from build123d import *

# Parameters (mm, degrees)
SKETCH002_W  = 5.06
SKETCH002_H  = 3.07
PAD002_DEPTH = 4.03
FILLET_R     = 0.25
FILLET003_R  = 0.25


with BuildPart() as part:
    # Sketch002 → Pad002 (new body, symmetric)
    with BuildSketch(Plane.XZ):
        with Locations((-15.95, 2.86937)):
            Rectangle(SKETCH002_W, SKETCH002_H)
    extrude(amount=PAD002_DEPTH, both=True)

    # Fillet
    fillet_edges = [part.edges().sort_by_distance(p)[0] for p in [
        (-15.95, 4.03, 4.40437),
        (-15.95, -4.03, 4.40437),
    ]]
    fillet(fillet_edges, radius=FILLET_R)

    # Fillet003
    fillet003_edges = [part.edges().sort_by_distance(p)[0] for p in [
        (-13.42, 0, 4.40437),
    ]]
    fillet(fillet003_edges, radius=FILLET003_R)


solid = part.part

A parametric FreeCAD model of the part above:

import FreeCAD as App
import Part
import Sketcher


def edges_at(feature, points):
    """Names of the edges that pass closest to the given points."""
    edges = feature.Shape.Edges
    near = lambda p: min(range(len(edges)), key=lambda i: edges[i].distToShape(Part.Vertex(*p))[0])
    return sorted({f"Edge{near(p) + 1}" for p in points})

doc = App.newDocument("Part")
body = doc.addObject("PartDesign::Body", "Body")

# Sketch on XZ plane
sketch1 = body.newObject("Sketcher::SketchObject", "Sketch")
sketch1.AttachmentSupport = (doc.getObject("XZ_Plane"), [""])
sketch1.MapMode = "FlatFace"
sketch1.addGeometry([
    Part.LineSegment(App.Vector(-18.5, 4.4, 0), App.Vector(-18.5, 1.3, 0)),
    Part.LineSegment(App.Vector(-18.5, 1.3, 0), App.Vector(-13.4, 1.3, 0)),
    Part.LineSegment(App.Vector(-13.4, 1.3, 0), App.Vector(-13.4, 4.4, 0)),
    Part.LineSegment(App.Vector(-13.4, 4.4, 0), App.Vector(-18.5, 4.4, 0)),
], False)
sketch1.addConstraint([
    Sketcher.Constraint("Coincident", 0, 2, 1, 1),
    Sketcher.Constraint("Coincident", 1, 2, 2, 1),
    Sketcher.Constraint("Coincident", 2, 2, 3, 1),
    Sketcher.Constraint("Coincident", 3, 2, 0, 1),
    Sketcher.Constraint("Vertical", 0),
    Sketcher.Constraint("Horizontal", 1),
    Sketcher.Constraint("Vertical", 2),
    Sketcher.Constraint("Horizontal", 3),
    Sketcher.Constraint("DistanceX", 1, 1, 1, 2, 5.06),
    Sketcher.Constraint("DistanceY", 0, 2, 0, 1, 3.07),
    Sketcher.Constraint("DistanceX", 0, 2, -1, 1, 18.48),
    Sketcher.Constraint("DistanceY", -1, 1, 0, 2, 1.33437),
])
pad1 = body.newObject("PartDesign::Pad", "Pad")
pad1.Profile = sketch1
pad1.Length = 8.06
pad1.Midplane = True
doc.recompute()

fillet = body.newObject("PartDesign::Fillet", "Fillet")
fillet.Base = (pad1, edges_at(pad1, [(-15.95, 4.03, 4.404), (-15.95, -4.03, 4.404)]))
fillet.Radius = 0.25
doc.recompute()

fillet2 = body.newObject("PartDesign::Fillet", "Fillet001")
fillet2.Base = (fillet, edges_at(fillet, [(-13.42, 0, 4.404)]))
fillet2.Radius = 0.25

doc.recompute()
